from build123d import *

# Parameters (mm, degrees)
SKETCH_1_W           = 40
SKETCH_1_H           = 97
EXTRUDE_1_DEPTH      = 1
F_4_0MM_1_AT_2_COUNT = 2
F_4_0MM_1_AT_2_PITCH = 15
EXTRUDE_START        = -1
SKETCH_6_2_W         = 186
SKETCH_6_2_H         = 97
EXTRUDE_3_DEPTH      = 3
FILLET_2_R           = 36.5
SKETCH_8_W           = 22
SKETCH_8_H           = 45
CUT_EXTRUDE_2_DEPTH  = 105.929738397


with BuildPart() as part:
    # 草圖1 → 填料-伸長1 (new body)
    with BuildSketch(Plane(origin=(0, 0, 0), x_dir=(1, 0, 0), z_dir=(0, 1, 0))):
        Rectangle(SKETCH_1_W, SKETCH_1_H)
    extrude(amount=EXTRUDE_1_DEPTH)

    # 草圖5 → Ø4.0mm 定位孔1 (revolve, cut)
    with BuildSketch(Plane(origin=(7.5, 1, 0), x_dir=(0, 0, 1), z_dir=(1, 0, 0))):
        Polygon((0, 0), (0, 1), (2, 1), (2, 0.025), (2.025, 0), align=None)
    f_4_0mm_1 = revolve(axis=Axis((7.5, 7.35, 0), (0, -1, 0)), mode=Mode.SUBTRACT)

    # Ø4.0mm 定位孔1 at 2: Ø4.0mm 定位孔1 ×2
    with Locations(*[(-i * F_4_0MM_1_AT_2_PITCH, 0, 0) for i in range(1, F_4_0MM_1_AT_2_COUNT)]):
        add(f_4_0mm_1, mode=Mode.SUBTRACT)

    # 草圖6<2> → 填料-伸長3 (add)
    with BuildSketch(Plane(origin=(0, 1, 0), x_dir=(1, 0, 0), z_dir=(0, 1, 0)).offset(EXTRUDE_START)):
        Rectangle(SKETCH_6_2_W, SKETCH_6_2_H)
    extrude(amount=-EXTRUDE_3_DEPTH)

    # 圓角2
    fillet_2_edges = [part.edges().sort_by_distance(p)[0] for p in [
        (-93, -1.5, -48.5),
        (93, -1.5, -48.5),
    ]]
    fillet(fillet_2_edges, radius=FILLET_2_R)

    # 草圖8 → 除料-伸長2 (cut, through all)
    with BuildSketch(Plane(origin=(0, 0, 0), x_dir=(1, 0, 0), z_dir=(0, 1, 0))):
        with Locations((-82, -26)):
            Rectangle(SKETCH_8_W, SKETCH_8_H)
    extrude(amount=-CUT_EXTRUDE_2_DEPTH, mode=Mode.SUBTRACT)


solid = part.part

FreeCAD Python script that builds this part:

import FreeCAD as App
import Part
import Sketcher
Q = App.Units.Quantity


def edges_at(feature, points):
    """Names of the edges that pass closest to the given points."""
    edges = feature.Shape.Edges
    near = lambda p: min(range(len(edges)), key=lambda i: edges[i].distToShape(Part.Vertex(*p))[0])
    return sorted({f"Edge{near(p) + 1}" for p in points})


def add_polygon(sketch, points):
    """Adds a closed chain of lines whose ends are joined by coincident constraints."""
    first, n = sketch.GeometryCount, len(points)
    for a, b in zip(points, points[1:] + points[:1]):
        sketch.addGeometry(Part.LineSegment(App.Vector(*a, 0), App.Vector(*b, 0)), False)
    for i in range(n):
        sketch.addConstraint(Sketcher.Constraint("Coincident", first + i, 2, first + (i + 1) % n, 1))

doc = App.newDocument("Part")
body = doc.addObject("PartDesign::Body", "Body")

# Sketch on XZ plane
sketch1 = doc.addObject("Sketcher::SketchObject", "Sketch")
body.addObject(sketch1)
sketch1.AttachmentSupport = (doc.XZ_Plane, [""])
sketch1.MapMode = "FlatFace"
add_polygon(sketch1, [(-20, -48), (-20, 48), (20, 48), (20, -48)])  # lines 0-3
sketch1.addConstraint([
    Sketcher.Constraint("Vertical", 0),
    Sketcher.Constraint("Horizontal", 1),
    Sketcher.Constraint("Vertical", 2),
    Sketcher.Constraint("Horizontal", 3),
    Sketcher.Constraint("Symmetric", 0, 2, 2, 2, -1, 1),
    Sketcher.Constraint("DistanceX", 1, 1, 1, 2, Q("40 mm")),
    Sketcher.Constraint("DistanceY", 0, 1, 0, 2, Q("97 mm")),
])
pad1 = doc.addObject("PartDesign::Pad", "Pad")
body.addObject(pad1)
pad1.Profile = sketch1
pad1.Length = 1
pad1.Reversed = True

# Sketch on YZ plane
sketch2 = doc.addObject("Sketcher::SketchObject", "Sketch001")
body.addObject(sketch2)
sketch2.AttachmentSupport = (doc.YZ_Plane, [""])
sketch2.MapMode = "FlatFace"
sketch2.AttachmentOffset = App.Placement(App.Vector(0, 0, 7.5), App.Rotation())
add_polygon(sketch2, [(0, 0), (1, 0), (1, 2.025), (0.975, 2), (0, 2)])  # lines 0-4
sketch2.addConstraint([
    Sketcher.Constraint("Horizontal", 0),
    Sketcher.Constraint("Vertical", 1),
    Sketcher.Constraint("Horizontal", 3),
    Sketcher.Constraint("Vertical", 4),
    Sketcher.Constraint("Coincident", 4, 2, -1, 1),
    Sketcher.Constraint("DistanceX", 0, 1, 0, 2, Q("1 mm")),
    Sketcher.Constraint("DistanceY", 4, 2, 4, 1, Q("2 mm")),
    Sketcher.Constraint("Angle", 2, Q("-135 deg")),
    Sketcher.Constraint("DistanceX", 3, 2, 3, 1, Q("0.975 mm")),
])
groove = doc.addObject("PartDesign::Groove", "Groove")
body.addObject(groove)
groove.Profile = sketch2
groove.ReferenceAxis = (sketch2, ["H_Axis"])
groove.Angle = 360
doc.recompute()

linearpattern = doc.addObject("PartDesign::LinearPattern", "LinearPattern")
body.addObject(linearpattern)
linearpattern.Originals = [groove]
linearpattern.Direction = (doc.X_Axis, [""])
linearpattern.Mode = "offset"
linearpattern.Offset = 15
linearpattern.Occurrences = 2
linearpattern.Reversed = True
body.Tip = linearpattern

# Sketch on XZ plane
sketch3 = doc.addObject("Sketcher::SketchObject", "Sketch002")
body.addObject(sketch3)
sketch3.AttachmentSupport = (doc.XZ_Plane, [""])
sketch3.MapMode = "FlatFace"
add_polygon(sketch3, [(-93, -48), (-93, 48), (93, 48), (93, -48)])  # lines 0-3
sketch3.addConstraint([
    Sketcher.Constraint("Vertical", 0),
    Sketcher.Constraint("Horizontal", 1),
    Sketcher.Constraint("Vertical", 2),
    Sketcher.Constraint("Horizontal", 3),
    Sketcher.Constraint("Symmetric", 0, 2, 2, 2, -1, 1),
    Sketcher.Constraint("DistanceX", 1, 1, 1, 2, Q("186 mm")),
    Sketcher.Constraint("DistanceY", 0, 1, 0, 2, Q("97 mm")),
])
pad2 = doc.addObject("PartDesign::Pad", "Pad001")
body.addObject(pad2)
pad2.Profile = sketch3
pad2.Length = 3
doc.recompute()

fillet = doc.addObject("PartDesign::Fillet", "Fillet")
body.addObject(fillet)
fillet.Base = (pad2, edges_at(pad2, [(-93, -1.5, -48.5), (93, -1.5, -48.5)]))
fillet.Radius = 36.5

# Sketch on XZ plane
sketch4 = doc.addObject("Sketcher::SketchObject", "Sketch003")
body.addObject(sketch4)
sketch4.AttachmentSupport = (doc.XZ_Plane, [""])
sketch4.MapMode = "FlatFace"
add_polygon(sketch4, [(-93, 4), (-93, 48), (-71, 48), (-71, 4)])  # lines 0-3
sketch4.addConstraint([
    Sketcher.Constraint("Vertical", 0),
    Sketcher.Constraint("Horizontal", 1),
    Sketcher.Constraint("Vertical", 2),
    Sketcher.Constraint("Horizontal", 3),
    Sketcher.Constraint("DistanceX", 1, 1, 1, 2, Q("22 mm")),
    Sketcher.Constraint("DistanceY", 0, 1, 0, 2, Q("45 mm")),
    Sketcher.Constraint("DistanceX", 0, 2, -1, 1, Q("93 mm")),
    Sketcher.Constraint("DistanceY", -1, 1, 0, 2, Q("48.5 mm")),
])
pocket1 = doc.addObject("PartDesign::Pocket", "Pocket")
body.addObject(pocket1)
pocket1.Profile = sketch4
pocket1.Type = "ThroughAll"
pocket1.Reversed = True

doc.recompute()
